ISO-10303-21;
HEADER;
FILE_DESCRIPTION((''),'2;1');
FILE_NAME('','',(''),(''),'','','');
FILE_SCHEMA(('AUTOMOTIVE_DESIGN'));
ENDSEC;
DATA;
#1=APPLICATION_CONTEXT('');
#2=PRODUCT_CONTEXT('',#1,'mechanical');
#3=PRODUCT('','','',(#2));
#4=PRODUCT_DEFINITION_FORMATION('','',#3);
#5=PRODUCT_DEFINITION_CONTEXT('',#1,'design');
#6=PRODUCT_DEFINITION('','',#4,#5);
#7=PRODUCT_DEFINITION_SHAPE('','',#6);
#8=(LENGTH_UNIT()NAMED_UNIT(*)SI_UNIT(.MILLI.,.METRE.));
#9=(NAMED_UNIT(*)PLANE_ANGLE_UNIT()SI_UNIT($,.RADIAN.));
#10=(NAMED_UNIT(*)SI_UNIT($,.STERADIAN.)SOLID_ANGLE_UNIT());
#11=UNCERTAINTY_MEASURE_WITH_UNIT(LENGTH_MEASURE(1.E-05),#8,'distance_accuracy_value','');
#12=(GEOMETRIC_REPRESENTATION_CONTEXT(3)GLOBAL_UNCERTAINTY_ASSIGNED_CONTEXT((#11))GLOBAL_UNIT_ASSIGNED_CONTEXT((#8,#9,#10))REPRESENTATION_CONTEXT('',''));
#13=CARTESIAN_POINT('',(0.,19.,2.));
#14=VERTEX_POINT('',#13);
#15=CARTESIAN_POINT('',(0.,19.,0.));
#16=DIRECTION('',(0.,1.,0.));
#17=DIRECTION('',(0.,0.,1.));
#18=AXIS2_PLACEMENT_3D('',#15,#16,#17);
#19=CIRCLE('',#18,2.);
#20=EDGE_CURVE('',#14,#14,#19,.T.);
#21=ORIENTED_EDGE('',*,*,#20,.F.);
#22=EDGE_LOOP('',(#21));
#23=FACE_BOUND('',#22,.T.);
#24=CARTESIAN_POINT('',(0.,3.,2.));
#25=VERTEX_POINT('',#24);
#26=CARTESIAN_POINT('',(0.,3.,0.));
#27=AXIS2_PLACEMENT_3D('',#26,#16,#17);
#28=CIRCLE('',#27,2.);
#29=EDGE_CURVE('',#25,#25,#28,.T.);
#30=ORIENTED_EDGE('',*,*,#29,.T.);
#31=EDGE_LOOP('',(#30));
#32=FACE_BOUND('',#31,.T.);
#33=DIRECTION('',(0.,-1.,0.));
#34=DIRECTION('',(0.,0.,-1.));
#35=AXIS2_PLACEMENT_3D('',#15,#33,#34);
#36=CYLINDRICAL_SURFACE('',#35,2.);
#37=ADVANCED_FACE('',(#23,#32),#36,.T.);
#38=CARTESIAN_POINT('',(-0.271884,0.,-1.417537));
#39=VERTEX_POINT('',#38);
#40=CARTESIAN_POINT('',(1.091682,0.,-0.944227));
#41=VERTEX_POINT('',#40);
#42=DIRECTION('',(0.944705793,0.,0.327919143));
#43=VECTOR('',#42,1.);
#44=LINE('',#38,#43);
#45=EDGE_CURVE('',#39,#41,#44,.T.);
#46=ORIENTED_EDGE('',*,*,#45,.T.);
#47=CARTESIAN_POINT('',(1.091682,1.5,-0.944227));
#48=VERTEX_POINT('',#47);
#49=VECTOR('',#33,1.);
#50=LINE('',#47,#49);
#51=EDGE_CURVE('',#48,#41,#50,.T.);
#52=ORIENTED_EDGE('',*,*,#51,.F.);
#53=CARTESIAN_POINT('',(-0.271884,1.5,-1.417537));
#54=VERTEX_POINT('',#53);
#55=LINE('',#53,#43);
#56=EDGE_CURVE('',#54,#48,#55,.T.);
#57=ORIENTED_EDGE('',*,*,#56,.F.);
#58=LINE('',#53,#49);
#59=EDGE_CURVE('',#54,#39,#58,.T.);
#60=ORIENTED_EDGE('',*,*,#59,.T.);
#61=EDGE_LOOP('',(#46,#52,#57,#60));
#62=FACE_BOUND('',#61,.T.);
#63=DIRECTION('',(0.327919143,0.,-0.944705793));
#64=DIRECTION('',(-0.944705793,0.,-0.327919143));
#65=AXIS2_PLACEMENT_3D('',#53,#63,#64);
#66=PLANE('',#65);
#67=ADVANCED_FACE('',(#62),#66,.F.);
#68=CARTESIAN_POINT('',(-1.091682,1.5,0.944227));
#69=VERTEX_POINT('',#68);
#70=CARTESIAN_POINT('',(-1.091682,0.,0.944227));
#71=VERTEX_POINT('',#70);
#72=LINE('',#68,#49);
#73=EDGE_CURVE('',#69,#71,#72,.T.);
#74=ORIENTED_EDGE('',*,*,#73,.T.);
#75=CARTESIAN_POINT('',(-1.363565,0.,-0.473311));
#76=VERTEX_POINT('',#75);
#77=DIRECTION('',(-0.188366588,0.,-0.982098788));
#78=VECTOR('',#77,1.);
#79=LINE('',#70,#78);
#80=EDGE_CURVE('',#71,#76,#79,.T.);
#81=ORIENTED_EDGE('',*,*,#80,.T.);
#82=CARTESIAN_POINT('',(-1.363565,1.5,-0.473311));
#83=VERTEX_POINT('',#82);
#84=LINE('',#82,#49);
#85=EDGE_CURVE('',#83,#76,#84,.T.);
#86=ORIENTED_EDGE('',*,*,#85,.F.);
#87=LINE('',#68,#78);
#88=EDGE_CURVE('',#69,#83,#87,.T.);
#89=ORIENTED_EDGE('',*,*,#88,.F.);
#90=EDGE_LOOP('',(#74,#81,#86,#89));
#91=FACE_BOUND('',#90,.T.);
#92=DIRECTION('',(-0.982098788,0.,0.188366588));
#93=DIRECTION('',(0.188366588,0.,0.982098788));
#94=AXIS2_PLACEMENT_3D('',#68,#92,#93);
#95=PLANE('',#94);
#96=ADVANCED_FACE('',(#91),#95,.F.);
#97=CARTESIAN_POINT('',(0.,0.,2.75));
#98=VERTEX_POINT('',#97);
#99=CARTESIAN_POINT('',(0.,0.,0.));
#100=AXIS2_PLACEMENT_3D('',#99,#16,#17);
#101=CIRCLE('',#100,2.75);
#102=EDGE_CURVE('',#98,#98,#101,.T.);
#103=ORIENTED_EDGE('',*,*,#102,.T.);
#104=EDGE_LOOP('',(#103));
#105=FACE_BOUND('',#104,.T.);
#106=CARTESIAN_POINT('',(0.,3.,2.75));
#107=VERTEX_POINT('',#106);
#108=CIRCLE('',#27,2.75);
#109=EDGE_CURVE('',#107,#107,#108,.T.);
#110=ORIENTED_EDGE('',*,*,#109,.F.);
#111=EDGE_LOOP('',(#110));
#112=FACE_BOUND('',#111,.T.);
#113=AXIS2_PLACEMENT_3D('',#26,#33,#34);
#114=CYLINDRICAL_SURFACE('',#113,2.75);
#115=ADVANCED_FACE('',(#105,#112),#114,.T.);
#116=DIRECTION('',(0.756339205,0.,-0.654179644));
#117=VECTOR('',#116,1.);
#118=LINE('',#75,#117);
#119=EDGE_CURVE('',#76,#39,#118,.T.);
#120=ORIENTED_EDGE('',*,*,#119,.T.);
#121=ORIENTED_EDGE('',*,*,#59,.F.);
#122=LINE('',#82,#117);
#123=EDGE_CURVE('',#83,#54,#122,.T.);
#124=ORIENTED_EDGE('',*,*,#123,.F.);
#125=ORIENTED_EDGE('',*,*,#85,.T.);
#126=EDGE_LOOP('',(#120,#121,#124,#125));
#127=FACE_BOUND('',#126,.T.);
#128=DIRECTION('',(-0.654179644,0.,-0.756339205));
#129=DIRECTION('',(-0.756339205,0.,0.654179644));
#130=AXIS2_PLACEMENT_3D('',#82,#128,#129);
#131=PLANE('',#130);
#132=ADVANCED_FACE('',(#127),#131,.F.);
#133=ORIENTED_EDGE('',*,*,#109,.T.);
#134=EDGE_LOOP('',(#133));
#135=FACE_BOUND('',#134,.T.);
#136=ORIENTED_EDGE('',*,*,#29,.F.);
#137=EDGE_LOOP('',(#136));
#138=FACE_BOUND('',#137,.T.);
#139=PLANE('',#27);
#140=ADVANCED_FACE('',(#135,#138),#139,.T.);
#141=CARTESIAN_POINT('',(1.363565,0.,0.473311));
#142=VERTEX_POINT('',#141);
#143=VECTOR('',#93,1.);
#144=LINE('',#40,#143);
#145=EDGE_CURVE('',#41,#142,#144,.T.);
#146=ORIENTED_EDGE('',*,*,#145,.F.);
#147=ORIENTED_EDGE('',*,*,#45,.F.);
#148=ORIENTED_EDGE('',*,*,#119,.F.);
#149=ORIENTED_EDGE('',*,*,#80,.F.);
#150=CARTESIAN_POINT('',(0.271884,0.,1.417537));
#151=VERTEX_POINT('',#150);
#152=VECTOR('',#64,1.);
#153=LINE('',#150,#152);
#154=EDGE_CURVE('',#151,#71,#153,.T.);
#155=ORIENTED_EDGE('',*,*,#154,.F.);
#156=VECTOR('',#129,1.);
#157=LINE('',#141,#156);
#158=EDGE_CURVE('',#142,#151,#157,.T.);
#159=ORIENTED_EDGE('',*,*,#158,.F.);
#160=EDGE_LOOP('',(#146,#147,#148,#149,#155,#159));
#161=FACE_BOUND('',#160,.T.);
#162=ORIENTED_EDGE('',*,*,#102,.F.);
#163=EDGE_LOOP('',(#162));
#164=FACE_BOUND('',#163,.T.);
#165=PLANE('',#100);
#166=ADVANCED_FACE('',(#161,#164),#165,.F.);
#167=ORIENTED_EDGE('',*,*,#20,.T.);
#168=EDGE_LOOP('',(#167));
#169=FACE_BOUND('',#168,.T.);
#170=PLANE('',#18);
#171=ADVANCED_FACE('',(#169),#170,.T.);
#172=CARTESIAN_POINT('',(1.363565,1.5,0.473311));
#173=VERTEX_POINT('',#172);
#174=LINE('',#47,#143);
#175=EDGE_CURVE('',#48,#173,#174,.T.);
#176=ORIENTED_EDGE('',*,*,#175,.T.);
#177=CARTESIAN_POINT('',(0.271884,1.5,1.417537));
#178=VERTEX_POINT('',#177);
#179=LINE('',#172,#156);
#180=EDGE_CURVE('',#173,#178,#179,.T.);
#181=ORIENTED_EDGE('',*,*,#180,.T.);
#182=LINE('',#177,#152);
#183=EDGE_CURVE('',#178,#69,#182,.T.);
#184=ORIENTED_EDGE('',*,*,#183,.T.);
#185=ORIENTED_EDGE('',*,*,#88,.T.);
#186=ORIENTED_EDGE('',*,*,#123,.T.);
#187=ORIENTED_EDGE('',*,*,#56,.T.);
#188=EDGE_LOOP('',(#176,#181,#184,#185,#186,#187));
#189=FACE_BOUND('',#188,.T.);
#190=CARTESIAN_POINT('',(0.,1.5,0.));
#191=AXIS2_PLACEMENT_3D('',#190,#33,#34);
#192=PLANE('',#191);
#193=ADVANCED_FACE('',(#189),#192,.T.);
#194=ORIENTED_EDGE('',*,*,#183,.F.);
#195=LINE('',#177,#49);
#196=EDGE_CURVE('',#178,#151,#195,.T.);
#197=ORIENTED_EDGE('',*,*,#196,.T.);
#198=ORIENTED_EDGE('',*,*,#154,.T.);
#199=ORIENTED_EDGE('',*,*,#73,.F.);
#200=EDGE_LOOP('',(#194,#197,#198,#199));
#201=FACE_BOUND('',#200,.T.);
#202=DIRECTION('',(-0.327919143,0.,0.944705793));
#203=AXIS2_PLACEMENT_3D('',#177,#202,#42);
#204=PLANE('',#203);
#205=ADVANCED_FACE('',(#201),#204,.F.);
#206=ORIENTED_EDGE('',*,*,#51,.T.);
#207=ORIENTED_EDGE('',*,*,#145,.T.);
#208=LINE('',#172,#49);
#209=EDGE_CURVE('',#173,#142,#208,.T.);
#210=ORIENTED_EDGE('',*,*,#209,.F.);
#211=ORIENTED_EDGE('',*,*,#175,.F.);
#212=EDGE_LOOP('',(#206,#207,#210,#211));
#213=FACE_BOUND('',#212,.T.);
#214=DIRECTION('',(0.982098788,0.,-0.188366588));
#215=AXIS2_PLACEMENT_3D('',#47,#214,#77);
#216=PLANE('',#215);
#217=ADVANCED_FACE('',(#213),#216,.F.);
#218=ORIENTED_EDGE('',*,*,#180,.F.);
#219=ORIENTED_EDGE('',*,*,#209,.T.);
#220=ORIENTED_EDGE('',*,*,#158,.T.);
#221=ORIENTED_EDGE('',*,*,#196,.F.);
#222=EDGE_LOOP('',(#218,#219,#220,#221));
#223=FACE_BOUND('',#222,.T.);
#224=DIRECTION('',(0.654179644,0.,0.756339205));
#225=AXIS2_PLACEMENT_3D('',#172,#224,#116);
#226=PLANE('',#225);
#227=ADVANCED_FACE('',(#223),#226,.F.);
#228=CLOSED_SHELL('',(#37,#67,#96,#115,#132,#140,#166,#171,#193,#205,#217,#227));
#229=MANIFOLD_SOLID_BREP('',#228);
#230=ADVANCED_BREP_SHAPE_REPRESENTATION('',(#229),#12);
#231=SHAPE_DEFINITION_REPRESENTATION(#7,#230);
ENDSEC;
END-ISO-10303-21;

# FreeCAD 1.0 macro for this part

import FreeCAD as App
import Part
import Sketcher
from FreeCAD import Vector
Q = App.Units.Quantity

doc = App.newDocument("Part")
body = doc.addObject("PartDesign::Body", "Body")

# Sketch on XZ plane
sketch1 = body.newObject("Sketcher::SketchObject", "Sketch")
sketch1.AttachmentSupport = (doc.getObject("XZ_Plane"), [""])
sketch1.MapMode = "FlatFace"
sketch1.addGeometry(Part.Circle(Vector(0, 0, 0), Vector(0, 0, 1), 2.8), False)
sketch1.addConstraint([
    Sketcher.Constraint("Coincident", 0, 3, -1, 1),
    Sketcher.Constraint("Diameter", 0, Q("5.5 mm")),
])
pad1 = body.newObject("PartDesign::Pad", "Pad")
pad1.Profile = sketch1
pad1.Length = 3
pad1.Reversed = True

# Sketch on XZ plane
sketch2 = body.newObject("Sketcher::SketchObject", "Sketch001")
sketch2.AttachmentSupport = (doc.getObject("XZ_Plane"), [""])
sketch2.MapMode = "FlatFace"
sketch2.AttachmentOffset = App.Placement(Vector(0, 0, -3), App.Rotation())
sketch2.addGeometry(Part.Circle(Vector(0, 0, 0), Vector(0, 0, 1), 2), False)
sketch2.addConstraint([
    Sketcher.Constraint("Coincident", 0, 3, -1, 1),
    Sketcher.Constraint("Diameter", 0, Q("4 mm")),
])
pad2 = body.newObject("PartDesign::Pad", "Pad001")
pad2.Profile = sketch2
pad2.Length = 16
pad2.Reversed = True

# Sketch on XZ plane
sketch3 = body.newObject("Sketcher::SketchObject", "Sketch002")
sketch3.AttachmentSupport = (doc.getObject("XZ_Plane"), [""])
sketch3.MapMode = "FlatFace"
sketch3.addGeometry([
    Part.LineSegment(Vector(1.1, -0.9, 0), Vector(1.4, 0.5, 0)),  # 0
    Part.LineSegment(Vector(1.4, 0.5, 0), Vector(0.3, 1.4, 0)),  # 1
    Part.LineSegment(Vector(0.3, 1.4, 0), Vector(-1.1, 0.9, 0)),  # 2
    Part.LineSegment(Vector(-1.1, 0.9, 0), Vector(-1.4, -0.5, 0)),  # 3
    Part.LineSegment(Vector(-1.4, -0.5, 0), Vector(-0.3, -1.4, 0)),  # 4
    Part.LineSegment(Vector(-0.3, -1.4, 0), Vector(1.1, -0.9, 0)),  # 5
], False)
sketch3.addConstraint([
    Sketcher.Constraint("Coincident", 0, 2, 1, 1),
    Sketcher.Constraint("Coincident", 1, 2, 2, 1),
    Sketcher.Constraint("Coincident", 2, 2, 3, 1),
    Sketcher.Constraint("Coincident", 3, 2, 4, 1),
    Sketcher.Constraint("Coincident", 4, 2, 5, 1),
    Sketcher.Constraint("Coincident", 5, 2, 0, 1),
    Sketcher.Constraint("Symmetric", 0, 2, 3, 2, -1, 1),
    Sketcher.Constraint("Symmetric", 1, 2, 4, 2, -1, 1),
    Sketcher.Constraint("Symmetric", 2, 2, 5, 2, -1, 1),
    Sketcher.Constraint("Equal", 0, 1),
    Sketcher.Constraint("Equal", 1, 2),
    Sketcher.Constraint("DistanceY", -1, 1, 0, 2, Q("0.473311 mm")),
    Sketcher.Constraint("DistanceX", 2, 2, -1, 1, Q("1.091682 mm")),
    Sketcher.Constraint("DistanceX", 1, 2, 0, 2, Q("1.091682 mm")),
    Sketcher.Constraint("DistanceY", 2, 2, 1, 2, Q("0.473311 mm")),
])
pocket1 = body.newObject("PartDesign::Pocket", "Pocket")
pocket1.Profile = sketch3
pocket1.Length = 1.5

doc.recompute()
